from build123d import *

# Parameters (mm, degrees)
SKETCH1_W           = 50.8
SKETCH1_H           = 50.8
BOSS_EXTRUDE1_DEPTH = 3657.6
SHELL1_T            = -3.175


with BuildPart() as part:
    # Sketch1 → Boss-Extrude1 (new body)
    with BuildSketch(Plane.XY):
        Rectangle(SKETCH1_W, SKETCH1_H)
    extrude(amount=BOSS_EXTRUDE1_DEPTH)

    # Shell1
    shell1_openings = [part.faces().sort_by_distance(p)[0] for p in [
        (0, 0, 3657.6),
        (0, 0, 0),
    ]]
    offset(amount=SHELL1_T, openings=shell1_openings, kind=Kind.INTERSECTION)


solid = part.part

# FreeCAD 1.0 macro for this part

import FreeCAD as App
import Part
import Sketcher
Q = App.Units.Quantity


def faces_at(feature, points):
    """Names of the faces that lie closest to the given points."""
    faces = feature.Shape.Faces
    near = lambda p: min(range(len(faces)), key=lambda i: faces[i].distToShape(Part.Vertex(*p))[0])
    return sorted({f"Face{near(p) + 1}" for p in points})

doc = App.newDocument("Part")
params = doc.addObject("Spreadsheet::Sheet", "Params")
for row, (alias, value) in enumerate([
    ("sketch1_width", "2 in"),
    ("pad1_length", "144 in"),
    ("thickness_wall", "0.125 in"),
], start=1):
    params.set(f"A{row}", alias)
    params.set(f"B{row}", "=" + value)
    params.setAlias(f"B{row}", alias)

body = doc.addObject("PartDesign::Body", "Body")

sketch1 = doc.addObject("Sketcher::SketchObject", "Sketch")
body.addObject(sketch1)
sketch1.AttachmentSupport = (doc.XY_Plane, [""])
sketch1.MapMode = "FlatFace"
sketch1.addGeometry([
    Part.LineSegment(App.Vector(-25, 25, 0), App.Vector(-25, -25, 0)),
    Part.LineSegment(App.Vector(-25, -25, 0), App.Vector(25, -25, 0)),
    Part.LineSegment(App.Vector(25, -25, 0), App.Vector(25, 25, 0)),
    Part.LineSegment(App.Vector(25, 25, 0), App.Vector(-25, 25, 0)),
], False)
sketch1.addConstraint([
    Sketcher.Constraint("Coincident", 0, 2, 1, 1),
    Sketcher.Constraint("Coincident", 1, 2, 2, 1),
    Sketcher.Constraint("Coincident", 2, 2, 3, 1),
    Sketcher.Constraint("Coincident", 3, 2, 0, 1),
    Sketcher.Constraint("Vertical", 0),
    Sketcher.Constraint("Horizontal", 1),
    Sketcher.Constraint("Vertical", 2),
    Sketcher.Constraint("Horizontal", 3),
    Sketcher.Constraint("Symmetric", 0, 2, 2, 2, -1, 1),
    Sketcher.Constraint("Equal", 3, 0),
    Sketcher.Constraint("DistanceX", 1, 1, 1, 2, Q("2 in")),
])
sketch1.setExpression("Constraints[10]", "Params.sketch1_width")
pad1 = doc.addObject("PartDesign::Pad", "Pad")
body.addObject(pad1)
pad1.Profile = sketch1
pad1.setExpression("Length", "Params.pad1_length")
doc.recompute()

thickness = doc.addObject("PartDesign::Thickness", "Thickness")
body.addObject(thickness)
thickness.Base = (pad1, faces_at(pad1, [(0, 0, 3657.6), (0, 0, 0)]))
thickness.setExpression("Value", "Params.thickness_wall")
thickness.Reversed = True
thickness.Join = "Intersection"

doc.recompute()
